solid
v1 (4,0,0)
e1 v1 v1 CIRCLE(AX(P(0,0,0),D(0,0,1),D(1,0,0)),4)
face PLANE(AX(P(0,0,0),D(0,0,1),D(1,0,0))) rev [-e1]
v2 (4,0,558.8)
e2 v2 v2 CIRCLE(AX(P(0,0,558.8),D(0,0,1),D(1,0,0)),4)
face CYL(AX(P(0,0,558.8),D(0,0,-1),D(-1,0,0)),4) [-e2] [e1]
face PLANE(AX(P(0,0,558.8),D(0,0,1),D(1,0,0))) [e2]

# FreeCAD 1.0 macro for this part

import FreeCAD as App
import Part
import Sketcher

V = App.Vector
Q = App.Units.Quantity

doc = App.newDocument("Part")
body = doc.addObject("PartDesign::Body", "Body")

# Sketch on XY plane
sketch1 = body.newObject("Sketcher::SketchObject", "Sketch")
sketch1.AttachmentSupport = (doc.getObject("XY_Plane"), [""])
sketch1.MapMode = "FlatFace"
sketch1.addGeometry(Part.Circle(V(0, 0, 0), V(0, 0, 1), 4), False)
sketch1.addConstraint(Sketcher.Constraint("Coincident", 0, 3, -1, 1))
sketch1.addConstraint(Sketcher.Constraint("Diameter", 0, Q("8 mm")))
pad1 = body.newObject("PartDesign::Pad", "Pad")
pad1.Profile = sketch1
pad1.Length = 558.8

doc.recompute()
